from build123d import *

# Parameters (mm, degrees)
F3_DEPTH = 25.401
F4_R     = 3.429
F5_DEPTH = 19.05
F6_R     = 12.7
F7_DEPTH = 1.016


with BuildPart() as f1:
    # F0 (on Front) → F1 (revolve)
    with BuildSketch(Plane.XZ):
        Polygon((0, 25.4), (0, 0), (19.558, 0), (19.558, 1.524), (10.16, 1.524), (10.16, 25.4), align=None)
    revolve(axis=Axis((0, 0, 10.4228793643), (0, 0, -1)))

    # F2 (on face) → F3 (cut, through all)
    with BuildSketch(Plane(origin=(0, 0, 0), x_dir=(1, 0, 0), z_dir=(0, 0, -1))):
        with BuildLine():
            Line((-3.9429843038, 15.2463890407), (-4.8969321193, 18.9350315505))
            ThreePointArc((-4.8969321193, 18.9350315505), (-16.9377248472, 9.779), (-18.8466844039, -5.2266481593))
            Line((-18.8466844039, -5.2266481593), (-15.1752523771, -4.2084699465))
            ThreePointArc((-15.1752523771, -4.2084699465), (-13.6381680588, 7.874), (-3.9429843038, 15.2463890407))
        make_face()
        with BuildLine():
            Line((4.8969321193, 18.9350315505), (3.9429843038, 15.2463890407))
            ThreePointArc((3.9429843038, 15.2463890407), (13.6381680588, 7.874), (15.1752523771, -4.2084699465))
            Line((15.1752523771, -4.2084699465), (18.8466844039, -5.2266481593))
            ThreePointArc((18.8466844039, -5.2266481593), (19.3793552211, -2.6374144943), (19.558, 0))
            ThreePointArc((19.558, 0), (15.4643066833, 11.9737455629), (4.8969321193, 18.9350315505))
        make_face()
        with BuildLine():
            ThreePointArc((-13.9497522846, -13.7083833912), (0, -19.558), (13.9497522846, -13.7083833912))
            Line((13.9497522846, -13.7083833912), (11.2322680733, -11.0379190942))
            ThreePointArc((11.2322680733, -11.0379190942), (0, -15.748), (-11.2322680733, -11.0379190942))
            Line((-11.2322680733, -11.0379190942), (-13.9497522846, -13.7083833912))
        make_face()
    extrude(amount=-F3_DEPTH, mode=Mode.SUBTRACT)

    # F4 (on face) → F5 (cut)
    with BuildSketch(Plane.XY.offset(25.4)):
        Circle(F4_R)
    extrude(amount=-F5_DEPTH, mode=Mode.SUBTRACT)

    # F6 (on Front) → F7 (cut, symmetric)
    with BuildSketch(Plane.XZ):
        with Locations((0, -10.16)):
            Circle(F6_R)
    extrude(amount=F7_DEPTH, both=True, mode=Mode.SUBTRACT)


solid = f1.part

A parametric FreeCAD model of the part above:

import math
import FreeCAD as App
import Part
import Sketcher
Q = App.Units.Quantity


def add_polygon(sketch, points):
    """Adds a closed chain of lines whose ends are joined by coincident constraints."""
    first, n = sketch.GeometryCount, len(points)
    for a, b in zip(points, points[1:] + points[:1]):
        sketch.addGeometry(Part.LineSegment(App.Vector(*a, 0), App.Vector(*b, 0)), False)
    for i in range(n):
        sketch.addConstraint(Sketcher.Constraint("Coincident", first + i, 2, first + (i + 1) % n, 1))

doc = App.newDocument("Part")
body = doc.addObject("PartDesign::Body", "Body")

# Sketch on XZ plane
sketch1 = doc.addObject("Sketcher::SketchObject", "Sketch")
body.addObject(sketch1)
sketch1.AttachmentSupport = (doc.XZ_Plane, [""])
sketch1.MapMode = "FlatFace"
add_polygon(sketch1, [(0, 25.4), (0, 0), (19.6, 0), (19.6, 1.5), (10.2, 1.5), (10.2, 25.4)])  # lines 0-5
sketch1.addConstraint(Sketcher.Constraint("Vertical", 0))
sketch1.addConstraint(Sketcher.Constraint("Horizontal", 1))
sketch1.addConstraint(Sketcher.Constraint("Vertical", 2))
sketch1.addConstraint(Sketcher.Constraint("Horizontal", 3))
sketch1.addConstraint(Sketcher.Constraint("Vertical", 4))
sketch1.addConstraint(Sketcher.Constraint("Horizontal", 5))
sketch1.addConstraint(Sketcher.Constraint("Coincident", 0, 2, -1, 1))
sketch1.addConstraint(Sketcher.Constraint("DistanceY", 0, 2, 0, 1, Q("1 in")))
sketch1.addConstraint(Sketcher.Constraint("DistanceX", 5, 2, 5, 1, Q("0.4 in")))
sketch1.addConstraint(Sketcher.Constraint("DistanceX", 1, 1, 1, 2, Q("0.77 in")))
sketch1.addConstraint(Sketcher.Constraint("DistanceY", 2, 1, 2, 2, Q("0.06 in")))
revolution = doc.addObject("PartDesign::Revolution", "Revolution")
body.addObject(revolution)
revolution.Profile = sketch1
revolution.ReferenceAxis = (sketch1, ["V_Axis"])
revolution.Angle = 360

# Sketch on XY plane
sketch2 = doc.addObject("Sketcher::SketchObject", "Sketch001")
body.addObject(sketch2)
sketch2.AttachmentSupport = (doc.XY_Plane, [""])
sketch2.MapMode = "FlatFace"
sketch2.addGeometry(Part.LineSegment(App.Vector(-3.9, -15.2, 0), App.Vector(-4.9, -18.9, 0)), False)
sketch2.addGeometry(Part.ArcOfCircle(Part.Circle(App.Vector(0, 0, 0), App.Vector(0, 0, 1), 19.6), math.radians(165), math.radians(256)), False)
sketch2.addGeometry(Part.LineSegment(App.Vector(-18.8, 5.2, 0), App.Vector(-15.2, 4.2, 0)), False)
sketch2.addGeometry(Part.ArcOfCircle(Part.Circle(App.Vector(0, 0, 0), App.Vector(0, 0, 1), 15.7), math.radians(164), math.radians(255)), False)
sketch2.addGeometry(Part.LineSegment(App.Vector(4.9, -18.9, 0), App.Vector(3.9, -15.2, 0)), False)
sketch2.addGeometry(Part.ArcOfCircle(Part.Circle(App.Vector(0, 0, 0), App.Vector(0, 0, 1), 15.7), math.radians(-75), math.radians(16)), False)
sketch2.addGeometry(Part.LineSegment(App.Vector(15.2, 4.2, 0), App.Vector(18.8, 5.2, 0)), False)
sketch2.addGeometry(Part.ArcOfCircle(Part.Circle(App.Vector(0, 0, 0), App.Vector(0, 0, 1), 19.6), math.radians(0), math.radians(15.5)), False)
sketch2.addGeometry(Part.ArcOfCircle(Part.Circle(App.Vector(0, 0, 0), App.Vector(0, 0, 1), 19.6), math.radians(-76), math.radians(0)), False)
sketch2.addGeometry(Part.ArcOfCircle(Part.Circle(App.Vector(0, 0, 0), App.Vector(0, 0, 1), 19.6), math.radians(44), math.radians(136)), False)
sketch2.addGeometry(Part.LineSegment(App.Vector(13.9, 13.7, 0), App.Vector(11.2, 11, 0)), False)
sketch2.addGeometry(Part.ArcOfCircle(Part.Circle(App.Vector(0, 0, 0), App.Vector(0, 0, 1), 15.7), math.radians(45), math.radians(135)), False)
sketch2.addGeometry(Part.LineSegment(App.Vector(-11.2, 11, 0), App.Vector(-13.9, 13.7, 0)), False)
sketch2.addConstraint(Sketcher.Constraint("Coincident", 0, 2, 1, 2))
sketch2.addConstraint(Sketcher.Constraint("Coincident", 1, 1, 2, 1))
sketch2.addConstraint(Sketcher.Constraint("Coincident", 2, 2, 3, 1))
sketch2.addConstraint(Sketcher.Constraint("Coincident", 3, 2, 0, 1))
sketch2.addConstraint(Sketcher.Constraint("Coincident", 4, 2, 5, 1))
sketch2.addConstraint(Sketcher.Constraint("Coincident", 5, 2, 6, 1))
sketch2.addConstraint(Sketcher.Constraint("Coincident", 6, 2, 7, 2))
sketch2.addConstraint(Sketcher.Constraint("Tangent", 7, 1, 8, 2))
sketch2.addConstraint(Sketcher.Constraint("Coincident", 8, 1, 4, 1))
sketch2.addConstraint(Sketcher.Constraint("Coincident", 9, 1, 10, 1))
sketch2.addConstraint(Sketcher.Constraint("Coincident", 10, 2, 11, 1))
sketch2.addConstraint(Sketcher.Constraint("Coincident", 11, 2, 12, 1))
sketch2.addConstraint(Sketcher.Constraint("Coincident", 12, 2, 9, 2))
sketch2.addConstraint(Sketcher.Constraint("Coincident", 1, 3, -1, 1))
sketch2.addConstraint(Sketcher.Constraint("Coincident", 3, 3, -1, 1))
sketch2.addConstraint(Sketcher.Constraint("Coincident", 5, 3, -1, 1))
sketch2.addConstraint(Sketcher.Constraint("Coincident", 7, 3, -1, 1))
sketch2.addConstraint(Sketcher.Constraint("Coincident", 9, 3, -1, 1))
sketch2.addConstraint(Sketcher.Constraint("Coincident", 11, 3, -1, 1))
sketch2.addConstraint(Sketcher.Constraint("Equal", 3, 5))
sketch2.addConstraint(Sketcher.Constraint("Equal", 1, 7))
sketch2.addConstraint(Sketcher.Constraint("Equal", 7, 8))
sketch2.addConstraint(Sketcher.Constraint("Equal", 8, 9))
sketch2.addConstraint(Sketcher.Constraint("Equal", 5, 11))
sketch2.addConstraint(Sketcher.Constraint("PointOnObject", 7, 1, -1))
sketch2.addConstraint(Sketcher.Constraint("Horizontal", 3, 2, 4, 2))
sketch2.addConstraint(Sketcher.Constraint("Horizontal", 2, 2, 5, 2))
sketch2.addConstraint(Sketcher.Constraint("Horizontal", 1, 1, 6, 2))
sketch2.addConstraint(Sketcher.Constraint("Horizontal", 0, 2, 8, 1))
sketch2.addConstraint(Sketcher.Constraint("Horizontal", 10, 2, 11, 2))
sketch2.addConstraint(Sketcher.Constraint("Horizontal", 9, 1, 12, 2))
sketch2.addConstraint(Sketcher.Constraint("Radius", 1, Q("0.77 in")))
sketch2.addConstraint(Sketcher.Constraint("Radius", 3, Q("0.62 in")))
sketch2.addConstraint(Sketcher.Constraint("Angle", 0, Q("-104.5 deg")))
sketch2.addConstraint(Sketcher.Constraint("Angle", 2, Q("-15.5 deg")))
sketch2.addConstraint(Sketcher.Constraint("Angle", 10, Q("-135.5 deg")))
sketch2.addConstraint(Sketcher.Constraint("DistanceY", -1, 1, 9, 1, Q("0.5397001 in")))
sketch2.addConstraint(Sketcher.Constraint("DistanceX", 9, 1, 5, 2, Q("1.2255 mm")))
sketch2.addConstraint(Sketcher.Constraint("DistanceY", 0, 2, -1, 1, Q("18.935032 mm")))
pocket1 = doc.addObject("PartDesign::Pocket", "Pocket")
body.addObject(pocket1)
pocket1.Profile = sketch2
pocket1.Type = "ThroughAll"
pocket1.Reversed = True

# Sketch on XY plane
sketch3 = doc.addObject("Sketcher::SketchObject", "Sketch002")
body.addObject(sketch3)
sketch3.AttachmentSupport = (doc.XY_Plane, [""])
sketch3.MapMode = "FlatFace"
sketch3.AttachmentOffset = App.Placement(App.Vector(0, 0, 1 * 25.4), App.Rotation())
sketch3.addGeometry(Part.Circle(App.Vector(0, 0, 0), App.Vector(0, 0, 1), 3.4), False)
sketch3.addConstraint(Sketcher.Constraint("Coincident", 0, 3, -1, 1))
sketch3.addConstraint(Sketcher.Constraint("Diameter", 0, Q("0.27 in")))
pocket2 = doc.addObject("PartDesign::Pocket", "Pocket001")
body.addObject(pocket2)
pocket2.Profile = sketch3
pocket2.Length = Q("0.75 in")

# Sketch on XZ plane
sketch4 = doc.addObject("Sketcher::SketchObject", "Sketch003")
body.addObject(sketch4)
sketch4.AttachmentSupport = (doc.XZ_Plane, [""])
sketch4.MapMode = "FlatFace"
sketch4.addGeometry(Part.Circle(App.Vector(0, -10, 0), App.Vector(0, 0, 1), 13), False)
sketch4.addConstraint(Sketcher.Constraint("PointOnObject", 0, 3, -2))
sketch4.addConstraint(Sketcher.Constraint("Diameter", 0, Q("1 in")))
sketch4.addConstraint(Sketcher.Constraint("DistanceY", 0, 3, -1, 1, Q("0.4 in")))
pocket3 = doc.addObject("PartDesign::Pocket", "Pocket002")
body.addObject(pocket3)
pocket3.Profile = sketch4
pocket3.Length = Q("0.08 in")
pocket3.Midplane = True

doc.recompute()
